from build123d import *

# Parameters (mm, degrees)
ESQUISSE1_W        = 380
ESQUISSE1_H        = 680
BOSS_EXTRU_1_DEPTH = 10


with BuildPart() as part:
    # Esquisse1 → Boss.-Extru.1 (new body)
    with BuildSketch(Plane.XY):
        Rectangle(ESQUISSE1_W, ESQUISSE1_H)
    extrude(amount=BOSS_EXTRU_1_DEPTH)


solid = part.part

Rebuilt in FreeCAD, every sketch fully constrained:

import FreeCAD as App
import Part
import Sketcher

V = App.Vector
Q = App.Units.Quantity

doc = App.newDocument("Part")
body = doc.addObject("PartDesign::Body", "Body")

# Sketch on XY plane
sketch1 = doc.addObject("Sketcher::SketchObject", "Sketch")
body.addObject(sketch1)
sketch1.AttachmentSupport = (doc.XY_Plane, [""])
sketch1.MapMode = "FlatFace"
sketch1.addGeometry([
    Part.LineSegment(V(-190, 340, 0), V(-190, -340, 0)),
    Part.LineSegment(V(-190, -340, 0), V(190, -340, 0)),
    Part.LineSegment(V(190, -340, 0), V(190, 340, 0)),
    Part.LineSegment(V(190, 340, 0), V(-190, 340, 0)),
], False)
sketch1.addConstraint([
    Sketcher.Constraint("Coincident", 0, 2, 1, 1),
    Sketcher.Constraint("Coincident", 1, 2, 2, 1),
    Sketcher.Constraint("Coincident", 2, 2, 3, 1),
    Sketcher.Constraint("Coincident", 3, 2, 0, 1),
    Sketcher.Constraint("Vertical", 0),
    Sketcher.Constraint("Horizontal", 1),
    Sketcher.Constraint("Vertical", 2),
    Sketcher.Constraint("Horizontal", 3),
    Sketcher.Constraint("Symmetric", 0, 2, 2, 2, -1, 1),
    Sketcher.Constraint("DistanceX", 1, 1, 1, 2, Q("380 mm")),
    Sketcher.Constraint("DistanceY", 0, 2, 0, 1, Q("680 mm")),
])
pad1 = doc.addObject("PartDesign::Pad", "Pad")
body.addObject(pad1)
pad1.Profile = sketch1
pad1.Length = 10

doc.recompute()
